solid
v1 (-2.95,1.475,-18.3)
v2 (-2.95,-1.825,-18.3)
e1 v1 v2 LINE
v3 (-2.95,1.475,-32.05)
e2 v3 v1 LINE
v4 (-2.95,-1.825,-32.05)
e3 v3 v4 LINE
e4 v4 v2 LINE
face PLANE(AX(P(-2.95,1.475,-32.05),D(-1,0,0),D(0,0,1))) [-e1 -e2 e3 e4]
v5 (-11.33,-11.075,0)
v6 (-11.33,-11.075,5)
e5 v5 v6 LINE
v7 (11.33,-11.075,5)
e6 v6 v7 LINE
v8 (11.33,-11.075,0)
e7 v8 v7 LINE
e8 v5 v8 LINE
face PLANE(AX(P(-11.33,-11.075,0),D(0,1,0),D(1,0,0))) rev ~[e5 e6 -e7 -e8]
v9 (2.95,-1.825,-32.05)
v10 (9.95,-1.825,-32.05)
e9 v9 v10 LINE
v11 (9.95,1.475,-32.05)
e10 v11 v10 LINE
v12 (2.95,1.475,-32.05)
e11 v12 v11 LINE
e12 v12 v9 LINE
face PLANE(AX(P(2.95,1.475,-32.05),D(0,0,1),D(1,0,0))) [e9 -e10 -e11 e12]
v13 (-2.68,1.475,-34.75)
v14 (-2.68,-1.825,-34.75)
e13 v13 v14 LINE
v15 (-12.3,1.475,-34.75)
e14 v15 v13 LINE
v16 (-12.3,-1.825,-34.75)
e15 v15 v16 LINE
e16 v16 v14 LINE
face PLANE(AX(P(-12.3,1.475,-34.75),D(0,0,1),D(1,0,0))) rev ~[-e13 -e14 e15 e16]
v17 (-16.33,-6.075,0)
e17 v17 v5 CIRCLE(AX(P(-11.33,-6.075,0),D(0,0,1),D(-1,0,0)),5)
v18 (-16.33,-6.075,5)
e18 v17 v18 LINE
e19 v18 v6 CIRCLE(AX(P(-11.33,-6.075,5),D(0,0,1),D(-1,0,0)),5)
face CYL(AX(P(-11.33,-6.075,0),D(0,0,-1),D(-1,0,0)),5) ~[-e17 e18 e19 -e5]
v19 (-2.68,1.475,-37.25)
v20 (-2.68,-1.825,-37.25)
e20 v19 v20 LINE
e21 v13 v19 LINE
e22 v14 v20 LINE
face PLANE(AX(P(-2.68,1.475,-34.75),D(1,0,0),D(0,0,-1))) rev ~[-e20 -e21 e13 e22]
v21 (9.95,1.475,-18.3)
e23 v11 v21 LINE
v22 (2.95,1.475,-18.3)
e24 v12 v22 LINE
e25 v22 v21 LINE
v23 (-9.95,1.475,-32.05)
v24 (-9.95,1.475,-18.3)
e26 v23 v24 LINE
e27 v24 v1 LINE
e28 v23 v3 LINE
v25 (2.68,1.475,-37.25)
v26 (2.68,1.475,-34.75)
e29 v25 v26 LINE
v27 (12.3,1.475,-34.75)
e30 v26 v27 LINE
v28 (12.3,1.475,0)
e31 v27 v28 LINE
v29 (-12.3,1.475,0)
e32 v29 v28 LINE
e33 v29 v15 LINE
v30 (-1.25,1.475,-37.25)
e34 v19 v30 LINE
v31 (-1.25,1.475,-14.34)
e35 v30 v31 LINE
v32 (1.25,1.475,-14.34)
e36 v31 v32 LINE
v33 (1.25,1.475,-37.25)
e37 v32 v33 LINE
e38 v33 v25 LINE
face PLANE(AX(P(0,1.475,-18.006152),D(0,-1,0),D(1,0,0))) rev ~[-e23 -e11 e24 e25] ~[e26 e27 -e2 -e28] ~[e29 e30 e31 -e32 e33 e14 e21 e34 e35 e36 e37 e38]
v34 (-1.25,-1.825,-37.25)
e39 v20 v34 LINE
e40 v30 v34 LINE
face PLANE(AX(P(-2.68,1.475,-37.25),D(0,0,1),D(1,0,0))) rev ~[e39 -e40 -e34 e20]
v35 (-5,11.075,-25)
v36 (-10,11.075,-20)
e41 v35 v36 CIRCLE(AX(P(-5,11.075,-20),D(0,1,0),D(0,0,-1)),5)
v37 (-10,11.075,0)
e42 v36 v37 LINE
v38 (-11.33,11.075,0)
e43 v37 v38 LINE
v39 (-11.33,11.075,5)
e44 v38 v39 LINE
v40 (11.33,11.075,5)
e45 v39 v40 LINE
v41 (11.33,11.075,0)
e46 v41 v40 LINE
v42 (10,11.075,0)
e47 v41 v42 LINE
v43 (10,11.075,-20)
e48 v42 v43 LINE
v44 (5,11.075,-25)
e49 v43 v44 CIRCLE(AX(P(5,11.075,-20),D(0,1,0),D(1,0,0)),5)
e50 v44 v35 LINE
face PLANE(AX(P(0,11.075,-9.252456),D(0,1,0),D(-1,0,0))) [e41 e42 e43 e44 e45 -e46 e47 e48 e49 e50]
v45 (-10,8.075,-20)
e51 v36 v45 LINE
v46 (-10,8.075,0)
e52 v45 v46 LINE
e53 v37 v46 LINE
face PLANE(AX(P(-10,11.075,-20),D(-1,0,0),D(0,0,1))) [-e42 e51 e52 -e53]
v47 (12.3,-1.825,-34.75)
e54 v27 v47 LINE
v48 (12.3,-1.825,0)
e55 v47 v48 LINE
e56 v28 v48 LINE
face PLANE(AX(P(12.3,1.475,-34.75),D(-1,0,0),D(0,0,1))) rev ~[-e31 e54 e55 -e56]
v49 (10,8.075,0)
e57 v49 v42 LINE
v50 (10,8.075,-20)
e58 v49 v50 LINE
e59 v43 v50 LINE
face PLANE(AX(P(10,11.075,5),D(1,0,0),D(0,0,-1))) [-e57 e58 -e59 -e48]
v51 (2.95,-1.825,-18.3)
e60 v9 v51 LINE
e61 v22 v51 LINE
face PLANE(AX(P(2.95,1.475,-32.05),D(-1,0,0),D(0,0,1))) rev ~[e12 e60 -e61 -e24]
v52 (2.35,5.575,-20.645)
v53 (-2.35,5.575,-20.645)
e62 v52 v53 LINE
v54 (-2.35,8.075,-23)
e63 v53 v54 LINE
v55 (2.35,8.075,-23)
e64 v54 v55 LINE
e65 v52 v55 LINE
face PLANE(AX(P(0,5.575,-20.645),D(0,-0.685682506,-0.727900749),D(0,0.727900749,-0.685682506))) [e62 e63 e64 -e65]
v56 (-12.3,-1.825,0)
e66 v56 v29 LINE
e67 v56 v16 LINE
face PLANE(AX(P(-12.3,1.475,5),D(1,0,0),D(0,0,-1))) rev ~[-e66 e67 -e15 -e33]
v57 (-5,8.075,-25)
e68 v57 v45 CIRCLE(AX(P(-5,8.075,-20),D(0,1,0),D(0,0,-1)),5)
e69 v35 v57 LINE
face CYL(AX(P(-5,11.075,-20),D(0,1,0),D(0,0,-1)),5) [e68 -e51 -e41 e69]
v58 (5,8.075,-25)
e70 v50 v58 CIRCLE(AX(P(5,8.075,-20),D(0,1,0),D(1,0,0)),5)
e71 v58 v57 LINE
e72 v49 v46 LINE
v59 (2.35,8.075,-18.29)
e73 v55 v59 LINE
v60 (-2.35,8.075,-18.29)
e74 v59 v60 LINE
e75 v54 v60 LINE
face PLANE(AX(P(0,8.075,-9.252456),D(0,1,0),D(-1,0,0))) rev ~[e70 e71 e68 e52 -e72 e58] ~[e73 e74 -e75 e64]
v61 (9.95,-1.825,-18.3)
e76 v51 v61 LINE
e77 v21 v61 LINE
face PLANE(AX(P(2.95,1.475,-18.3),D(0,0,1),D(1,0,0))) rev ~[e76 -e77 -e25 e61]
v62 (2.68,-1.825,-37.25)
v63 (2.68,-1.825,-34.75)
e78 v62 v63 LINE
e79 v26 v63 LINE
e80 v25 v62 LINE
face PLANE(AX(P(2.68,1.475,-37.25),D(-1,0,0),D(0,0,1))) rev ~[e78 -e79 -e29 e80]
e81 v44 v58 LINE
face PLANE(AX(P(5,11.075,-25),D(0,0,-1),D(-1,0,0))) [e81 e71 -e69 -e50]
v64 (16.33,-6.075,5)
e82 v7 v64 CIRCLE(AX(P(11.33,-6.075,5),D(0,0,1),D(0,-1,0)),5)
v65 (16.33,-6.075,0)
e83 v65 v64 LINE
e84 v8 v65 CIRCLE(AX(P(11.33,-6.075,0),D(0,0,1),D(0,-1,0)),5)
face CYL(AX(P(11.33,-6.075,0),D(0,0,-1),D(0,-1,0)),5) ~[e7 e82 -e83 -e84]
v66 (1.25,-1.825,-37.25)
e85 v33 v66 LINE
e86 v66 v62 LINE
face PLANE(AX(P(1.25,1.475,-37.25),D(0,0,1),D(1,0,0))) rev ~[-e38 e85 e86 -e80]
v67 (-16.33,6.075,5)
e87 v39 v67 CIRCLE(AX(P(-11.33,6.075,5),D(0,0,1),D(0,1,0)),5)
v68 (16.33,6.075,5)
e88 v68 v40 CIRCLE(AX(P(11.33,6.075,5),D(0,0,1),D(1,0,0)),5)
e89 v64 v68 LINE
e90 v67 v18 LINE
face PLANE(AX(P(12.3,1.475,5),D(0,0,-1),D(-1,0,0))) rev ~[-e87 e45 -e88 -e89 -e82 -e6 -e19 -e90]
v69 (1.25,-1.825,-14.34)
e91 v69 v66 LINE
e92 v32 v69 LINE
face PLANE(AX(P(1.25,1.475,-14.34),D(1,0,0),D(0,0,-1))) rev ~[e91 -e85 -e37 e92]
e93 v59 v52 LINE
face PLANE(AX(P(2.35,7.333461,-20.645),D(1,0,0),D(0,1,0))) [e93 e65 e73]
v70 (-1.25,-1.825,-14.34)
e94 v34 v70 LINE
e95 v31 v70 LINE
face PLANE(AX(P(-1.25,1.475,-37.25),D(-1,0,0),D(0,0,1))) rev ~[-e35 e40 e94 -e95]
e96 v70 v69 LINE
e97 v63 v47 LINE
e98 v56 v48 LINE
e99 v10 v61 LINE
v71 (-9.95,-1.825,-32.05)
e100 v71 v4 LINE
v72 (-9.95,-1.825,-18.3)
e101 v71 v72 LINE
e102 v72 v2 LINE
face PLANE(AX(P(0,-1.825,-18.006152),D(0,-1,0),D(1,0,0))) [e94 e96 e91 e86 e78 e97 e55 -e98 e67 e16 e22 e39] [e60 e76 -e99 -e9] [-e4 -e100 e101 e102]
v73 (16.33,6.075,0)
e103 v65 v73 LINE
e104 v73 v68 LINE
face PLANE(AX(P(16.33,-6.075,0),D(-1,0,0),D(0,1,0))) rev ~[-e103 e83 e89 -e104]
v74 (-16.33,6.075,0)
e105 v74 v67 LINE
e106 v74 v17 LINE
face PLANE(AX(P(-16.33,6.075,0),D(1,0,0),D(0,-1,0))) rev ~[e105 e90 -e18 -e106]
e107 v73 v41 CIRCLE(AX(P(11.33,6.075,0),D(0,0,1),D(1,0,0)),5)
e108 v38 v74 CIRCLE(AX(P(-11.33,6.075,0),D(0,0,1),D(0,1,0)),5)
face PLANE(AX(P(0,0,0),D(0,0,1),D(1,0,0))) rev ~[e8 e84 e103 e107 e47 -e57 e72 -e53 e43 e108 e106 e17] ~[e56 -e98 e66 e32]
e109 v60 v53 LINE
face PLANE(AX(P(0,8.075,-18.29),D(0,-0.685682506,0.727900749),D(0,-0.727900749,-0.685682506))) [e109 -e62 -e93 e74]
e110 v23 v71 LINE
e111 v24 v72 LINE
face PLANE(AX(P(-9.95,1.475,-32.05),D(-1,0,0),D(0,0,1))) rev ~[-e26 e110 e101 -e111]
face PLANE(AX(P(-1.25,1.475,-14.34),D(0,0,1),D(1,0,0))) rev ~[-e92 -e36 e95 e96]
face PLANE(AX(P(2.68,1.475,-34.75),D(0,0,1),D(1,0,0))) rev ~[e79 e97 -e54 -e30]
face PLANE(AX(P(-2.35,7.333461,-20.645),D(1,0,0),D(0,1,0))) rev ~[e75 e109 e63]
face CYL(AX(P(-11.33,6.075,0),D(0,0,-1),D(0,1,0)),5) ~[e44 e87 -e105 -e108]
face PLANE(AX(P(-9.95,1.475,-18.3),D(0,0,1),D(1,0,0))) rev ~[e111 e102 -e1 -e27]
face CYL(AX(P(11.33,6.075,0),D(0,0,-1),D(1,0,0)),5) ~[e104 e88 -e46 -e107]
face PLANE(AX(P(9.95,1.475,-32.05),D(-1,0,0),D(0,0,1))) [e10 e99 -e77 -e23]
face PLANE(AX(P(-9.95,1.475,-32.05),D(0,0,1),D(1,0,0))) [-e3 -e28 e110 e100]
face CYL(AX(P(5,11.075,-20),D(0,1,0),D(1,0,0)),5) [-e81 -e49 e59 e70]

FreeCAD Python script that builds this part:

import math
import FreeCAD as App
import Part
import Sketcher

V = App.Vector
Q = App.Units.Quantity

doc = App.newDocument("Part")
params = doc.addObject("Spreadsheet::Sheet", "Params")
for row, (alias, value) in enumerate([
    ("sketch1_radius", "5 mm"),
    ("sketch1_width", "22.66 mm"),
    ("sketch1_height", "12.15 mm"),
    ("pad1_length", "5 mm"),
    ("sketch2_radius", "5 mm"),
    ("sketch2_width", "20 mm"),
    ("sketch2_height", "25 mm"),
    ("pad2_length", "3 mm"),
    ("sketch3_height", "4.71 mm"),
    ("pad3_length", "4.7 mm"),
    ("sketch4_width", "7 mm"),
    ("sketch4_width2", "24.6 mm"),
    ("sketch4_width3", "2.5 mm"),
    ("sketch4_width4", "9.62 mm"),
    ("sketch4_height", "39.75 mm"),
    ("pad4_length", "3.3 mm"),
], start=1):
    params.set(f"A{row}", alias)
    params.set(f"B{row}", "=" + value)
    params.setAlias(f"B{row}", alias)

body = doc.addObject("PartDesign::Body", "Body")

sketch1 = doc.addObject("Sketcher::SketchObject", "Sketch")
body.addObject(sketch1)
sketch1.AttachmentSupport = (doc.XY_Plane, [""])
sketch1.MapMode = "FlatFace"
sketch1.addGeometry([
    Part.ArcOfCircle(Part.Circle(V(11, 6, 0), V(0, 0, 1), 5), math.radians(0), math.radians(90)),
    Part.LineSegment(V(11, 11, 0), V(-11, 11, 0)),
    Part.ArcOfCircle(Part.Circle(V(-11, 6, 0), V(0, 0, 1), 5), math.radians(90), math.radians(180)),
    Part.LineSegment(V(-16, 6, 0), V(-16, -6, 0)),
    Part.ArcOfCircle(Part.Circle(V(-11, -6, 0), V(0, 0, 1), 5), math.radians(180), math.radians(270)),
    Part.LineSegment(V(-11, -11, 0), V(11, -11, 0)),
    Part.ArcOfCircle(Part.Circle(V(11, -6, 0), V(0, 0, 1), 5), math.radians(-90), math.radians(0)),
    Part.LineSegment(V(16, -6, 0), V(16, 6, 0)),
], False)
sketch1.addConstraint([
    Sketcher.Constraint("Tangent", 0, 2, 1, 1),
    Sketcher.Constraint("Tangent", 1, 2, 2, 1),
    Sketcher.Constraint("Tangent", 2, 2, 3, 1),
    Sketcher.Constraint("Tangent", 3, 2, 4, 1),
    Sketcher.Constraint("Tangent", 4, 2, 5, 1),
    Sketcher.Constraint("Tangent", 5, 2, 6, 1),
    Sketcher.Constraint("Tangent", 6, 2, 7, 1),
    Sketcher.Constraint("Tangent", 7, 2, 0, 1),
    Sketcher.Constraint("Horizontal", 1),
    Sketcher.Constraint("Vertical", 3),
    Sketcher.Constraint("Horizontal", 5),
    Sketcher.Constraint("Vertical", 7),
    Sketcher.Constraint("Equal", 0, 2),
    Sketcher.Constraint("Equal", 2, 4),
    Sketcher.Constraint("Equal", 4, 6),
    Sketcher.Constraint("Symmetric", 0, 3, 4, 3, -1, 1),
    Sketcher.Constraint("Radius", 0, Q("5 mm")),
    Sketcher.Constraint("DistanceX", 1, 2, 1, 1, Q("22.66 mm")),
    Sketcher.Constraint("DistanceY", 3, 2, 3, 1, Q("12.15 mm")),
])
sketch1.setExpression("Constraints[16]", "Params.sketch1_radius")
sketch1.setExpression("Constraints[17]", "Params.sketch1_width")
sketch1.setExpression("Constraints[18]", "Params.sketch1_height")
pad1 = doc.addObject("PartDesign::Pad", "Pad")
body.addObject(pad1)
pad1.Profile = sketch1
pad1.setExpression("Length", "Params.pad1_length")

sketch2 = doc.addObject("Sketcher::SketchObject", "Sketch001")
body.addObject(sketch2)
sketch2.AttachmentSupport = (doc.XZ_Plane, [""])
sketch2.MapMode = "FlatFace"
sketch2.AttachmentOffset = App.Placement(V(0, 0, -11.075), App.Rotation())
sketch2.addGeometry([
    Part.LineSegment(V(-10, -20, 0), V(-10, 5, 0)),
    Part.LineSegment(V(-10, 5, 0), V(10, 5, 0)),
    Part.LineSegment(V(10, 5, 0), V(10, -20, 0)),
    Part.ArcOfCircle(Part.Circle(V(5, -20, 0), V(0, 0, 1), 5), math.radians(-90), math.radians(0)),
    Part.LineSegment(V(5, -25, 0), V(-5, -25, 0)),
    Part.ArcOfCircle(Part.Circle(V(-5, -20, 0), V(0, 0, 1), 5), math.radians(180), math.radians(270)),
], False)
sketch2.addConstraint([
    Sketcher.Constraint("Coincident", 0, 2, 1, 1),
    Sketcher.Constraint("Coincident", 1, 2, 2, 1),
    Sketcher.Constraint("Tangent", 2, 2, 3, 2),
    Sketcher.Constraint("Tangent", 3, 1, 4, 1),
    Sketcher.Constraint("Tangent", 4, 2, 5, 2),
    Sketcher.Constraint("Tangent", 5, 1, 0, 1),
    Sketcher.Constraint("Vertical", 0),
    Sketcher.Constraint("Horizontal", 1),
    Sketcher.Constraint("Vertical", 2),
    Sketcher.Constraint("Horizontal", 4),
    Sketcher.Constraint("Equal", 3, 5),
    Sketcher.Constraint("Radius", 3, Q("5 mm")),
    Sketcher.Constraint("DistanceX", 1, 1, 1, 2, Q("20 mm")),
    Sketcher.Constraint("DistanceY", 0, 1, 0, 2, Q("25 mm")),
    Sketcher.Constraint("DistanceX", -1, 1, 3, 3, Q("5 mm")),
    Sketcher.Constraint("DistanceY", 3, 3, -1, 1, Q("20 mm")),
])
sketch2.setExpression("Constraints[11]", "Params.sketch2_radius")
sketch2.setExpression("Constraints[12]", "Params.sketch2_width")
sketch2.setExpression("Constraints[13]", "Params.sketch2_height")
pad2 = doc.addObject("PartDesign::Pad", "Pad001")
body.addObject(pad2)
pad2.Profile = sketch2
pad2.setExpression("Length", "Params.pad2_length")

sketch3 = doc.addObject("Sketcher::SketchObject", "Sketch002")
body.addObject(sketch3)
sketch3.AttachmentSupport = (doc.YZ_Plane, [""])
sketch3.MapMode = "FlatFace"
sketch3.addGeometry([
    Part.LineSegment(V(5.6, -20.6, 0), V(8.1, -23, 0)),
    Part.LineSegment(V(8.1, -23, 0), V(8.1, -18.3, 0)),
    Part.LineSegment(V(8.1, -18.3, 0), V(5.6, -20.6, 0)),
], False)
sketch3.addConstraint([
    Sketcher.Constraint("Coincident", 0, 2, 1, 1),
    Sketcher.Constraint("Coincident", 1, 2, 2, 1),
    Sketcher.Constraint("Coincident", 2, 2, 0, 1),
    Sketcher.Constraint("Vertical", 1),
    Sketcher.Constraint("Equal", 0, 2),
    Sketcher.Constraint("DistanceY", 0, 2, -1, 1, Q("23 mm")),
    Sketcher.Constraint("DistanceY", 1, 1, 1, 2, Q("4.71 mm")),
    Sketcher.Constraint("DistanceX", 2, 2, 0, 2, Q("2.5 mm")),
    Sketcher.Constraint("DistanceX", -1, 1, 0, 2, Q("8.075 mm")),
])
sketch3.setExpression("Constraints[6]", "Params.sketch3_height")
pad3 = doc.addObject("PartDesign::Pad", "Pad002")
body.addObject(pad3)
pad3.Profile = sketch3
pad3.setExpression("Length", "Params.pad3_length")
pad3.Midplane = True

sketch4 = doc.addObject("Sketcher::SketchObject", "Sketch003")
body.addObject(sketch4)
sketch4.AttachmentSupport = (doc.XZ_Plane, [""])
sketch4.MapMode = "FlatFace"
sketch4.AttachmentOffset = App.Placement(V(0, 0, -1.475), App.Rotation())
sketch4.addGeometry([
    Part.LineSegment(V(12.3, 5, 0), V(-12.3, 5, 0)),
    Part.LineSegment(V(-12.3, 5, 0), V(-12.3, -34.8, 0)),
    Part.LineSegment(V(-12.3, -34.8, 0), V(-2.7, -34.8, 0)),
    Part.LineSegment(V(-2.7, -34.8, 0), V(-2.7, -37.2, 0)),
    Part.LineSegment(V(-2.7, -37.2, 0), V(-1.2, -37.2, 0)),
    Part.LineSegment(V(-1.2, -37.2, 0), V(-1.2, -14.3, 0)),
    Part.LineSegment(V(-1.2, -14.3, 0), V(1.2, -14.3, 0)),
    Part.LineSegment(V(1.2, -14.3, 0), V(1.2, -37.2, 0)),
    Part.LineSegment(V(1.2, -37.2, 0), V(2.7, -37.2, 0)),
    Part.LineSegment(V(2.7, -37.2, 0), V(2.7, -34.8, 0)),
    Part.LineSegment(V(2.7, -34.8, 0), V(12.3, -34.8, 0)),
    Part.LineSegment(V(12.3, -34.8, 0), V(12.3, 5, 0)),
    Part.LineSegment(V(-3, -32, 0), V(-9.9, -32, 0)),
    Part.LineSegment(V(-9.9, -32, 0), V(-9.9, -18.3, 0)),
    Part.LineSegment(V(-9.9, -18.3, 0), V(-3, -18.3, 0)),
    Part.LineSegment(V(-3, -18.3, 0), V(-3, -32, 0)),
    Part.LineSegment(V(9.9, -32, 0), V(3, -32, 0)),
    Part.LineSegment(V(3, -32, 0), V(3, -18.3, 0)),
    Part.LineSegment(V(3, -18.3, 0), V(9.9, -18.3, 0)),
    Part.LineSegment(V(9.9, -18.3, 0), V(9.9, -32, 0)),
], False)
sketch4.addConstraint([
    Sketcher.Constraint("Coincident", 0, 2, 1, 1),
    Sketcher.Constraint("Coincident", 1, 2, 2, 1),
    Sketcher.Constraint("Coincident", 2, 2, 3, 1),
    Sketcher.Constraint("Coincident", 3, 2, 4, 1),
    Sketcher.Constraint("Coincident", 4, 2, 5, 1),
    Sketcher.Constraint("Coincident", 5, 2, 6, 1),
    Sketcher.Constraint("Coincident", 6, 2, 7, 1),
    Sketcher.Constraint("Coincident", 7, 2, 8, 1),
    Sketcher.Constraint("Coincident", 8, 2, 9, 1),
    Sketcher.Constraint("Coincident", 9, 2, 10, 1),
    Sketcher.Constraint("Coincident", 10, 2, 11, 1),
    Sketcher.Constraint("Coincident", 11, 2, 0, 1),
    Sketcher.Constraint("Coincident", 12, 2, 13, 1),
    Sketcher.Constraint("Coincident", 13, 2, 14, 1),
    Sketcher.Constraint("Coincident", 14, 2, 15, 1),
    Sketcher.Constraint("Coincident", 15, 2, 12, 1),
    Sketcher.Constraint("Coincident", 16, 2, 17, 1),
    Sketcher.Constraint("Coincident", 17, 2, 18, 1),
    Sketcher.Constraint("Coincident", 18, 2, 19, 1),
    Sketcher.Constraint("Coincident", 19, 2, 16, 1),
    Sketcher.Constraint("Horizontal", 0),
    Sketcher.Constraint("Vertical", 1),
    Sketcher.Constraint("Horizontal", 2),
    Sketcher.Constraint("Vertical", 3),
    Sketcher.Constraint("Horizontal", 4),
    Sketcher.Constraint("Vertical", 5),
    Sketcher.Constraint("Horizontal", 6),
    Sketcher.Constraint("Vertical", 7),
    Sketcher.Constraint("Horizontal", 8),
    Sketcher.Constraint("Vertical", 9),
    Sketcher.Constraint("Horizontal", 10),
    Sketcher.Constraint("Vertical", 11),
    Sketcher.Constraint("Horizontal", 12),
    Sketcher.Constraint("Vertical", 13),
    Sketcher.Constraint("Horizontal", 14),
    Sketcher.Constraint("Vertical", 15),
    Sketcher.Constraint("Horizontal", 16),
    Sketcher.Constraint("Vertical", 17),
    Sketcher.Constraint("Horizontal", 18),
    Sketcher.Constraint("Vertical", 19),
    Sketcher.Constraint("Symmetric", 4, 2, 7, 2, -2),
    Sketcher.Constraint("Symmetric", 2, 2, 9, 2, -2),
    Sketcher.Constraint("Symmetric", 15, 2, 16, 2, -2),
    Sketcher.Constraint("Symmetric", 13, 2, 18, 2, -2),
    Sketcher.Constraint("Equal", 2, 10),
    Sketcher.Constraint("Equal", 6, 3),
    Sketcher.Constraint("DistanceX", 12, 2, 12, 1, Q("7 mm")),
    Sketcher.Constraint("DistanceX", 0, 2, 0, 1, Q("24.6 mm")),
    Sketcher.Constraint("DistanceX", 6, 1, 6, 2, Q("2.5 mm")),
    Sketcher.Constraint("DistanceY", -1, 1, 0, 2, Q("5 mm")),
    Sketcher.Constraint("DistanceX", 2, 1, 2, 2, Q("9.62 mm")),
    Sketcher.Constraint("DistanceY", 1, 2, 1, 1, Q("39.75 mm")),
    Sketcher.Constraint("DistanceY", 5, 1, 5, 2, Q("22.91 mm")),
    Sketcher.Constraint("DistanceY", 13, 1, 13, 2, Q("13.75 mm")),
    Sketcher.Constraint("DistanceY", 13, 2, -1, 1, Q("18.3 mm")),
    Sketcher.Constraint("DistanceX", 12, 2, 4, 2, Q("8.7 mm")),
])
sketch4.setExpression("Constraints[46]", "Params.sketch4_width")
sketch4.setExpression("Constraints[47]", "Params.sketch4_width2")
sketch4.setExpression("Constraints[48]", "Params.sketch4_width3")
sketch4.setExpression("Constraints[50]", "Params.sketch4_width4")
sketch4.setExpression("Constraints[51]", "Params.sketch4_height")
pad4 = doc.addObject("PartDesign::Pad", "Pad003")
body.addObject(pad4)
pad4.Profile = sketch4
pad4.setExpression("Length", "Params.pad4_length")

doc.recompute()
